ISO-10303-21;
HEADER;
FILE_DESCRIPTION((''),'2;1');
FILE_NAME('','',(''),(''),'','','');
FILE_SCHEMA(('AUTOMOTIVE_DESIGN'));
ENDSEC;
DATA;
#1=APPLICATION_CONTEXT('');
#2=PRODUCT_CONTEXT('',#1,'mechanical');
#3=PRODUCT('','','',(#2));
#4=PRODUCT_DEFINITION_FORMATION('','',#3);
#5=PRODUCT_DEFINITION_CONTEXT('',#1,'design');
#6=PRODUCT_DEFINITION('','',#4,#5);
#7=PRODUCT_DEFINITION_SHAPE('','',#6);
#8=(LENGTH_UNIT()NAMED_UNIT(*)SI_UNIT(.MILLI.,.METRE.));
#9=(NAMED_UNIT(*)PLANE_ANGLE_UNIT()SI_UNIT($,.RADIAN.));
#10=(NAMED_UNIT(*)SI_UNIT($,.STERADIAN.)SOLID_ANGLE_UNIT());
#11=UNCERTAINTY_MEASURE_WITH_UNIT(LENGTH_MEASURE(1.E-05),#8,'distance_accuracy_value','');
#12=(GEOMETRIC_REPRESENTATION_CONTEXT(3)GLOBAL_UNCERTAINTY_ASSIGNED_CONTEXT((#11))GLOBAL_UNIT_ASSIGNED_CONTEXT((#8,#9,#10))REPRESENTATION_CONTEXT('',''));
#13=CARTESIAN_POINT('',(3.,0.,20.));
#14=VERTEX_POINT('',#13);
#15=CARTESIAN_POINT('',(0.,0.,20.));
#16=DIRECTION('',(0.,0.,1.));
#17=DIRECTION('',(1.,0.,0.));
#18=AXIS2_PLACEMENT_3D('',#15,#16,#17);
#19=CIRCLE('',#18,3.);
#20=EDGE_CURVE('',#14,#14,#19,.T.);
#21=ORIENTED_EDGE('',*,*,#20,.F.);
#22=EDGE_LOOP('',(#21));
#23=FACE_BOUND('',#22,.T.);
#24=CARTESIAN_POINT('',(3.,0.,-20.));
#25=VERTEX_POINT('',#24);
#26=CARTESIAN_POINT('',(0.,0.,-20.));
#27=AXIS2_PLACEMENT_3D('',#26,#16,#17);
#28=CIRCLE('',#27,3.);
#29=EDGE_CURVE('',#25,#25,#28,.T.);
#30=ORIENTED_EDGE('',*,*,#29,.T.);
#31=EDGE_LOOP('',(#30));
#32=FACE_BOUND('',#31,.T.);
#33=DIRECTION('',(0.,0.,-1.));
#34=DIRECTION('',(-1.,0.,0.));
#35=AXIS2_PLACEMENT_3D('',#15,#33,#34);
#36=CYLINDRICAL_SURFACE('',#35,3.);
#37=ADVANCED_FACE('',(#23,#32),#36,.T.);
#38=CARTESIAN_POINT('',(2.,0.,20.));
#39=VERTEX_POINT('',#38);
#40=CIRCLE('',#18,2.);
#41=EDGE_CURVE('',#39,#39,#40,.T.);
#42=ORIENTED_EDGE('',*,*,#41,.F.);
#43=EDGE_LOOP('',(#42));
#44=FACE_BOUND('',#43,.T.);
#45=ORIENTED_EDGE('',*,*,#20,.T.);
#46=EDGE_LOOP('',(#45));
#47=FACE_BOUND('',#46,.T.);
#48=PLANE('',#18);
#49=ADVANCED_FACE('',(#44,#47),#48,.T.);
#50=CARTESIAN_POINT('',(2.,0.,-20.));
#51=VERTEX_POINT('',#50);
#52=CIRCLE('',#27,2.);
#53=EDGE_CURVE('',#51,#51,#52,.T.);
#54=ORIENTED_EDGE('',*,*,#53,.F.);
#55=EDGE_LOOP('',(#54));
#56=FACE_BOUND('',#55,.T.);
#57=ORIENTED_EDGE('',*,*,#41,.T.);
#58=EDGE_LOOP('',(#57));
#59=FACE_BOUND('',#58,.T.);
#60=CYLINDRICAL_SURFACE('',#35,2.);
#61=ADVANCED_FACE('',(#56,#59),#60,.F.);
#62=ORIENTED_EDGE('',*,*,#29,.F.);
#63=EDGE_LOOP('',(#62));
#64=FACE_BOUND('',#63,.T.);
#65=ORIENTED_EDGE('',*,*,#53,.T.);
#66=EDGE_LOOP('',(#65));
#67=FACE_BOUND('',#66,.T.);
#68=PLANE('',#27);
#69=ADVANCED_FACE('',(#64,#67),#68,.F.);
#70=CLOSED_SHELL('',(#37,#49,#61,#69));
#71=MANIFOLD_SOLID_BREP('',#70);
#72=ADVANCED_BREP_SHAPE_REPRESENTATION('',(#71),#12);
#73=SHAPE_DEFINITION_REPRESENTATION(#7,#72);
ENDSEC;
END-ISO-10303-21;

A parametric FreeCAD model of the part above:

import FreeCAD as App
import Part
import Sketcher
Q = App.Units.Quantity

doc = App.newDocument("Part")
body = doc.addObject("PartDesign::Body", "Body")

sketch1 = body.newObject("Sketcher::SketchObject", "Sketch")
sketch1.AttachmentSupport = (doc.getObject("XY_Plane"), [""])
sketch1.MapMode = "FlatFace"
sketch1.addGeometry(Part.Circle(App.Vector(0, 0, 0), App.Vector(0, 0, 1), 3), False)
sketch1.addGeometry(Part.Circle(App.Vector(0, 0, 0), App.Vector(0, 0, 1), 2), False)
sketch1.addConstraint(Sketcher.Constraint("Coincident", 0, 3, -1, 1))
sketch1.addConstraint(Sketcher.Constraint("Coincident", 1, 3, -1, 1))
sketch1.addConstraint(Sketcher.Constraint("Diameter", 0, Q("6 mm")))
sketch1.addConstraint(Sketcher.Constraint("Diameter", 1, Q("4 mm")))
pad1 = body.newObject("PartDesign::Pad", "Pad")
pad1.Profile = sketch1
pad1.Length = 40
pad1.Midplane = True

doc.recompute()
